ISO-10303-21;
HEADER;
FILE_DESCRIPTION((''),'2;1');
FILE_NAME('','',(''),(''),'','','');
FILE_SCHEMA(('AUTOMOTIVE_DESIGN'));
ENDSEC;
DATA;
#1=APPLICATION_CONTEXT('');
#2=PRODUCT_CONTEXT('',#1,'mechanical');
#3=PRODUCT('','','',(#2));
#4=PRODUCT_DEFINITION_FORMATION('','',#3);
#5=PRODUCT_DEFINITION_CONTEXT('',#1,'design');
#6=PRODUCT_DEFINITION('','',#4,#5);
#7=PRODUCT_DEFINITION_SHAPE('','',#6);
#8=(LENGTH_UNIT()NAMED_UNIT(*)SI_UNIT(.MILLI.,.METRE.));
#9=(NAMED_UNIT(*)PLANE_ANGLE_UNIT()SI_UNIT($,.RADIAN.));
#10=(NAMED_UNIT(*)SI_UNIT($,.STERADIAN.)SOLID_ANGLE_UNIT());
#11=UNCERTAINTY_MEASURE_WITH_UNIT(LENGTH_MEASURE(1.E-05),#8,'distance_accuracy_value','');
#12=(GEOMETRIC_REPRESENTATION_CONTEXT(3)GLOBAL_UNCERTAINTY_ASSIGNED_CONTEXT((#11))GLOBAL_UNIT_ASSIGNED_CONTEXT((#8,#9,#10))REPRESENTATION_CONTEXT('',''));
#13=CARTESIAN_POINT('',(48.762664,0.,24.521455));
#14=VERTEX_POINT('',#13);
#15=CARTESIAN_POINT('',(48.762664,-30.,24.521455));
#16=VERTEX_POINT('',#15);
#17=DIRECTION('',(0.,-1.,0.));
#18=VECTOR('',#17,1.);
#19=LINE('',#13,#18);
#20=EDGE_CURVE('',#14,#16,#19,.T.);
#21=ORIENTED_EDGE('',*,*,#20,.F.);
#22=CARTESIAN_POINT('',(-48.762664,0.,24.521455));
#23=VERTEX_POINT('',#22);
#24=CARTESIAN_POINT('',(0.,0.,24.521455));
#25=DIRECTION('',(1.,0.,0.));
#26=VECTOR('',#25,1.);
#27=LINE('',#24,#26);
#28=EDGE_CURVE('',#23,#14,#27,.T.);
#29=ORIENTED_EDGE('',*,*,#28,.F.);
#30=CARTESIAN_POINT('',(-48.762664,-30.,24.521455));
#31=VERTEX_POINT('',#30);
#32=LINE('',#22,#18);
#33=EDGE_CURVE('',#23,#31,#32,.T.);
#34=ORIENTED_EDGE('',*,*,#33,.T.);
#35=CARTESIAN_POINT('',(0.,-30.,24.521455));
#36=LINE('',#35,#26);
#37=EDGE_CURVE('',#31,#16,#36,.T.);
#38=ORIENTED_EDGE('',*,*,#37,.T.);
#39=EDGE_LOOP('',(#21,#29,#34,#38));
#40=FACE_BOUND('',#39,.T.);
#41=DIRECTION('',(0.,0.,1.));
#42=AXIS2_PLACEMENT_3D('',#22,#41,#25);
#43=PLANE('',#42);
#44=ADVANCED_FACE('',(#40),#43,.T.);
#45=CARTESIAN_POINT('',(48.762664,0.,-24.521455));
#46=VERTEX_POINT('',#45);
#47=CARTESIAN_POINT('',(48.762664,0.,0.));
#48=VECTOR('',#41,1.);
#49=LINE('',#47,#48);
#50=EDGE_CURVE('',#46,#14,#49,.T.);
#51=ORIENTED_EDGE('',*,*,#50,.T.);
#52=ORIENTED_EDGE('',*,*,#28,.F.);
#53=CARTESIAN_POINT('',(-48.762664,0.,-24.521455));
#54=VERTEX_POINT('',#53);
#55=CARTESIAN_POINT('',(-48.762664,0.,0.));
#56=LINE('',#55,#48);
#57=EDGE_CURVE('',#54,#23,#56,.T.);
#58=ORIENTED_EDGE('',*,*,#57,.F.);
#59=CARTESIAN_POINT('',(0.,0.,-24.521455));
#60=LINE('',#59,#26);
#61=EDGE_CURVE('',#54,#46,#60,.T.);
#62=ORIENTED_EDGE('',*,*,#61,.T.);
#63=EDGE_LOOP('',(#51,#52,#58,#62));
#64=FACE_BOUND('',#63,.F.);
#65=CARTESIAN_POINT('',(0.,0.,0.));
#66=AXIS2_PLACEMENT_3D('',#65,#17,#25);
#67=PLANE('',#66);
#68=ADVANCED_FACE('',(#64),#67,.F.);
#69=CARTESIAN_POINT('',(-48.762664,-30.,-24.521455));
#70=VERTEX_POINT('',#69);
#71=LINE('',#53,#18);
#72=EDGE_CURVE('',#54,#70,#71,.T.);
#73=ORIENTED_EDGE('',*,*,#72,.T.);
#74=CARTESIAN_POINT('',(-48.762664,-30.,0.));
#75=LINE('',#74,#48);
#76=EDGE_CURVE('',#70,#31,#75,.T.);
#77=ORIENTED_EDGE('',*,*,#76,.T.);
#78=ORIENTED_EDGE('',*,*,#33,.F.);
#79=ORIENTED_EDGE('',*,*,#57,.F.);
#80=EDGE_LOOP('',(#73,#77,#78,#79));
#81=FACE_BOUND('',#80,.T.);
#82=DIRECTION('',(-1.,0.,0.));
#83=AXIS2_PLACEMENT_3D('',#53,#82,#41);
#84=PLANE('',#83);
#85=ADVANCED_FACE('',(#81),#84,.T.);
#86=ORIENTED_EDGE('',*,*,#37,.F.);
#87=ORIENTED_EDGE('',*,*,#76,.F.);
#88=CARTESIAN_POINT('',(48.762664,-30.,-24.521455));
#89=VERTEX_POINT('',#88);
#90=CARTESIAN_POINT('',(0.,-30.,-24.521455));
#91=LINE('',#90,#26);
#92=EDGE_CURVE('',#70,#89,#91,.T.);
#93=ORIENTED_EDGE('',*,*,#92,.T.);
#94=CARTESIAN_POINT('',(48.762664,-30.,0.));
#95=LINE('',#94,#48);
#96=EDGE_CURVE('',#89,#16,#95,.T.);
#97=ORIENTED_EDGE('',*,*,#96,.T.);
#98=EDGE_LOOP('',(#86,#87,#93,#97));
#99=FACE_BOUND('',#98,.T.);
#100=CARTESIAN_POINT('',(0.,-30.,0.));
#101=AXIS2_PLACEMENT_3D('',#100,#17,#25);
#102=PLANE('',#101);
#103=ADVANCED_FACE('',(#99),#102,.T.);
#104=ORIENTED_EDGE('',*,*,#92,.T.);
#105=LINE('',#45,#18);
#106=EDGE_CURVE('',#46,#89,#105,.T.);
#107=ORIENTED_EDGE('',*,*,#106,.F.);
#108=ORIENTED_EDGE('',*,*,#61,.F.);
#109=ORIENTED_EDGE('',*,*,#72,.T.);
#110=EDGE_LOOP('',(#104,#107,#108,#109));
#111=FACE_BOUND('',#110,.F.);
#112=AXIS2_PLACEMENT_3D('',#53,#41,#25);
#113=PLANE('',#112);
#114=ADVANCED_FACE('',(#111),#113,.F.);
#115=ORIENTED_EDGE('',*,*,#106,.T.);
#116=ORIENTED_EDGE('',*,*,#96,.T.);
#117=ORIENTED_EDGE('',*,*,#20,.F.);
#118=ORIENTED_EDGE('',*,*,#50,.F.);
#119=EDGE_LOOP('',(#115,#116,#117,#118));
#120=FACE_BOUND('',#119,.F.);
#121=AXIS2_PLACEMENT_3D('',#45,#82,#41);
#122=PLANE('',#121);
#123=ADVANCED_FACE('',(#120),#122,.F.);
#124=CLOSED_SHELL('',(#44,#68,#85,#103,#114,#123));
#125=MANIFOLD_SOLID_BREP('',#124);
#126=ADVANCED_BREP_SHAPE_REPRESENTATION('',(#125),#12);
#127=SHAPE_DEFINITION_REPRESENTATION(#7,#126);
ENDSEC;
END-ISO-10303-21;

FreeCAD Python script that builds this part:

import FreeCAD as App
import Part
import Sketcher

V = App.Vector
Q = App.Units.Quantity

doc = App.newDocument("Part")
body = doc.addObject("PartDesign::Body", "Body")

# Sketch on XZ plane
sketch1 = doc.addObject("Sketcher::SketchObject", "Sketch")
body.addObject(sketch1)
sketch1.AttachmentSupport = (doc.XZ_Plane, [""])
sketch1.MapMode = "FlatFace"
sketch1.addGeometry([
    Part.LineSegment(V(-49, 25, 0), V(-49, -25, 0)),
    Part.LineSegment(V(-49, -25, 0), V(49, -25, 0)),
    Part.LineSegment(V(49, -25, 0), V(49, 25, 0)),
    Part.LineSegment(V(49, 25, 0), V(-49, 25, 0)),
], False)
sketch1.addConstraint([
    Sketcher.Constraint("Coincident", 0, 2, 1, 1),
    Sketcher.Constraint("Coincident", 1, 2, 2, 1),
    Sketcher.Constraint("Coincident", 2, 2, 3, 1),
    Sketcher.Constraint("Coincident", 3, 2, 0, 1),
    Sketcher.Constraint("Vertical", 0),
    Sketcher.Constraint("Horizontal", 1),
    Sketcher.Constraint("Vertical", 2),
    Sketcher.Constraint("Horizontal", 3),
    Sketcher.Constraint("Symmetric", 0, 2, 2, 2, -1, 1),
    Sketcher.Constraint("DistanceX", 1, 1, 1, 2, Q("97.525328 mm")),
    Sketcher.Constraint("DistanceY", 0, 2, 0, 1, Q("49.04291 mm")),
])
pad1 = doc.addObject("PartDesign::Pad", "Pad")
body.addObject(pad1)
pad1.Profile = sketch1
pad1.Length = 30

doc.recompute()
